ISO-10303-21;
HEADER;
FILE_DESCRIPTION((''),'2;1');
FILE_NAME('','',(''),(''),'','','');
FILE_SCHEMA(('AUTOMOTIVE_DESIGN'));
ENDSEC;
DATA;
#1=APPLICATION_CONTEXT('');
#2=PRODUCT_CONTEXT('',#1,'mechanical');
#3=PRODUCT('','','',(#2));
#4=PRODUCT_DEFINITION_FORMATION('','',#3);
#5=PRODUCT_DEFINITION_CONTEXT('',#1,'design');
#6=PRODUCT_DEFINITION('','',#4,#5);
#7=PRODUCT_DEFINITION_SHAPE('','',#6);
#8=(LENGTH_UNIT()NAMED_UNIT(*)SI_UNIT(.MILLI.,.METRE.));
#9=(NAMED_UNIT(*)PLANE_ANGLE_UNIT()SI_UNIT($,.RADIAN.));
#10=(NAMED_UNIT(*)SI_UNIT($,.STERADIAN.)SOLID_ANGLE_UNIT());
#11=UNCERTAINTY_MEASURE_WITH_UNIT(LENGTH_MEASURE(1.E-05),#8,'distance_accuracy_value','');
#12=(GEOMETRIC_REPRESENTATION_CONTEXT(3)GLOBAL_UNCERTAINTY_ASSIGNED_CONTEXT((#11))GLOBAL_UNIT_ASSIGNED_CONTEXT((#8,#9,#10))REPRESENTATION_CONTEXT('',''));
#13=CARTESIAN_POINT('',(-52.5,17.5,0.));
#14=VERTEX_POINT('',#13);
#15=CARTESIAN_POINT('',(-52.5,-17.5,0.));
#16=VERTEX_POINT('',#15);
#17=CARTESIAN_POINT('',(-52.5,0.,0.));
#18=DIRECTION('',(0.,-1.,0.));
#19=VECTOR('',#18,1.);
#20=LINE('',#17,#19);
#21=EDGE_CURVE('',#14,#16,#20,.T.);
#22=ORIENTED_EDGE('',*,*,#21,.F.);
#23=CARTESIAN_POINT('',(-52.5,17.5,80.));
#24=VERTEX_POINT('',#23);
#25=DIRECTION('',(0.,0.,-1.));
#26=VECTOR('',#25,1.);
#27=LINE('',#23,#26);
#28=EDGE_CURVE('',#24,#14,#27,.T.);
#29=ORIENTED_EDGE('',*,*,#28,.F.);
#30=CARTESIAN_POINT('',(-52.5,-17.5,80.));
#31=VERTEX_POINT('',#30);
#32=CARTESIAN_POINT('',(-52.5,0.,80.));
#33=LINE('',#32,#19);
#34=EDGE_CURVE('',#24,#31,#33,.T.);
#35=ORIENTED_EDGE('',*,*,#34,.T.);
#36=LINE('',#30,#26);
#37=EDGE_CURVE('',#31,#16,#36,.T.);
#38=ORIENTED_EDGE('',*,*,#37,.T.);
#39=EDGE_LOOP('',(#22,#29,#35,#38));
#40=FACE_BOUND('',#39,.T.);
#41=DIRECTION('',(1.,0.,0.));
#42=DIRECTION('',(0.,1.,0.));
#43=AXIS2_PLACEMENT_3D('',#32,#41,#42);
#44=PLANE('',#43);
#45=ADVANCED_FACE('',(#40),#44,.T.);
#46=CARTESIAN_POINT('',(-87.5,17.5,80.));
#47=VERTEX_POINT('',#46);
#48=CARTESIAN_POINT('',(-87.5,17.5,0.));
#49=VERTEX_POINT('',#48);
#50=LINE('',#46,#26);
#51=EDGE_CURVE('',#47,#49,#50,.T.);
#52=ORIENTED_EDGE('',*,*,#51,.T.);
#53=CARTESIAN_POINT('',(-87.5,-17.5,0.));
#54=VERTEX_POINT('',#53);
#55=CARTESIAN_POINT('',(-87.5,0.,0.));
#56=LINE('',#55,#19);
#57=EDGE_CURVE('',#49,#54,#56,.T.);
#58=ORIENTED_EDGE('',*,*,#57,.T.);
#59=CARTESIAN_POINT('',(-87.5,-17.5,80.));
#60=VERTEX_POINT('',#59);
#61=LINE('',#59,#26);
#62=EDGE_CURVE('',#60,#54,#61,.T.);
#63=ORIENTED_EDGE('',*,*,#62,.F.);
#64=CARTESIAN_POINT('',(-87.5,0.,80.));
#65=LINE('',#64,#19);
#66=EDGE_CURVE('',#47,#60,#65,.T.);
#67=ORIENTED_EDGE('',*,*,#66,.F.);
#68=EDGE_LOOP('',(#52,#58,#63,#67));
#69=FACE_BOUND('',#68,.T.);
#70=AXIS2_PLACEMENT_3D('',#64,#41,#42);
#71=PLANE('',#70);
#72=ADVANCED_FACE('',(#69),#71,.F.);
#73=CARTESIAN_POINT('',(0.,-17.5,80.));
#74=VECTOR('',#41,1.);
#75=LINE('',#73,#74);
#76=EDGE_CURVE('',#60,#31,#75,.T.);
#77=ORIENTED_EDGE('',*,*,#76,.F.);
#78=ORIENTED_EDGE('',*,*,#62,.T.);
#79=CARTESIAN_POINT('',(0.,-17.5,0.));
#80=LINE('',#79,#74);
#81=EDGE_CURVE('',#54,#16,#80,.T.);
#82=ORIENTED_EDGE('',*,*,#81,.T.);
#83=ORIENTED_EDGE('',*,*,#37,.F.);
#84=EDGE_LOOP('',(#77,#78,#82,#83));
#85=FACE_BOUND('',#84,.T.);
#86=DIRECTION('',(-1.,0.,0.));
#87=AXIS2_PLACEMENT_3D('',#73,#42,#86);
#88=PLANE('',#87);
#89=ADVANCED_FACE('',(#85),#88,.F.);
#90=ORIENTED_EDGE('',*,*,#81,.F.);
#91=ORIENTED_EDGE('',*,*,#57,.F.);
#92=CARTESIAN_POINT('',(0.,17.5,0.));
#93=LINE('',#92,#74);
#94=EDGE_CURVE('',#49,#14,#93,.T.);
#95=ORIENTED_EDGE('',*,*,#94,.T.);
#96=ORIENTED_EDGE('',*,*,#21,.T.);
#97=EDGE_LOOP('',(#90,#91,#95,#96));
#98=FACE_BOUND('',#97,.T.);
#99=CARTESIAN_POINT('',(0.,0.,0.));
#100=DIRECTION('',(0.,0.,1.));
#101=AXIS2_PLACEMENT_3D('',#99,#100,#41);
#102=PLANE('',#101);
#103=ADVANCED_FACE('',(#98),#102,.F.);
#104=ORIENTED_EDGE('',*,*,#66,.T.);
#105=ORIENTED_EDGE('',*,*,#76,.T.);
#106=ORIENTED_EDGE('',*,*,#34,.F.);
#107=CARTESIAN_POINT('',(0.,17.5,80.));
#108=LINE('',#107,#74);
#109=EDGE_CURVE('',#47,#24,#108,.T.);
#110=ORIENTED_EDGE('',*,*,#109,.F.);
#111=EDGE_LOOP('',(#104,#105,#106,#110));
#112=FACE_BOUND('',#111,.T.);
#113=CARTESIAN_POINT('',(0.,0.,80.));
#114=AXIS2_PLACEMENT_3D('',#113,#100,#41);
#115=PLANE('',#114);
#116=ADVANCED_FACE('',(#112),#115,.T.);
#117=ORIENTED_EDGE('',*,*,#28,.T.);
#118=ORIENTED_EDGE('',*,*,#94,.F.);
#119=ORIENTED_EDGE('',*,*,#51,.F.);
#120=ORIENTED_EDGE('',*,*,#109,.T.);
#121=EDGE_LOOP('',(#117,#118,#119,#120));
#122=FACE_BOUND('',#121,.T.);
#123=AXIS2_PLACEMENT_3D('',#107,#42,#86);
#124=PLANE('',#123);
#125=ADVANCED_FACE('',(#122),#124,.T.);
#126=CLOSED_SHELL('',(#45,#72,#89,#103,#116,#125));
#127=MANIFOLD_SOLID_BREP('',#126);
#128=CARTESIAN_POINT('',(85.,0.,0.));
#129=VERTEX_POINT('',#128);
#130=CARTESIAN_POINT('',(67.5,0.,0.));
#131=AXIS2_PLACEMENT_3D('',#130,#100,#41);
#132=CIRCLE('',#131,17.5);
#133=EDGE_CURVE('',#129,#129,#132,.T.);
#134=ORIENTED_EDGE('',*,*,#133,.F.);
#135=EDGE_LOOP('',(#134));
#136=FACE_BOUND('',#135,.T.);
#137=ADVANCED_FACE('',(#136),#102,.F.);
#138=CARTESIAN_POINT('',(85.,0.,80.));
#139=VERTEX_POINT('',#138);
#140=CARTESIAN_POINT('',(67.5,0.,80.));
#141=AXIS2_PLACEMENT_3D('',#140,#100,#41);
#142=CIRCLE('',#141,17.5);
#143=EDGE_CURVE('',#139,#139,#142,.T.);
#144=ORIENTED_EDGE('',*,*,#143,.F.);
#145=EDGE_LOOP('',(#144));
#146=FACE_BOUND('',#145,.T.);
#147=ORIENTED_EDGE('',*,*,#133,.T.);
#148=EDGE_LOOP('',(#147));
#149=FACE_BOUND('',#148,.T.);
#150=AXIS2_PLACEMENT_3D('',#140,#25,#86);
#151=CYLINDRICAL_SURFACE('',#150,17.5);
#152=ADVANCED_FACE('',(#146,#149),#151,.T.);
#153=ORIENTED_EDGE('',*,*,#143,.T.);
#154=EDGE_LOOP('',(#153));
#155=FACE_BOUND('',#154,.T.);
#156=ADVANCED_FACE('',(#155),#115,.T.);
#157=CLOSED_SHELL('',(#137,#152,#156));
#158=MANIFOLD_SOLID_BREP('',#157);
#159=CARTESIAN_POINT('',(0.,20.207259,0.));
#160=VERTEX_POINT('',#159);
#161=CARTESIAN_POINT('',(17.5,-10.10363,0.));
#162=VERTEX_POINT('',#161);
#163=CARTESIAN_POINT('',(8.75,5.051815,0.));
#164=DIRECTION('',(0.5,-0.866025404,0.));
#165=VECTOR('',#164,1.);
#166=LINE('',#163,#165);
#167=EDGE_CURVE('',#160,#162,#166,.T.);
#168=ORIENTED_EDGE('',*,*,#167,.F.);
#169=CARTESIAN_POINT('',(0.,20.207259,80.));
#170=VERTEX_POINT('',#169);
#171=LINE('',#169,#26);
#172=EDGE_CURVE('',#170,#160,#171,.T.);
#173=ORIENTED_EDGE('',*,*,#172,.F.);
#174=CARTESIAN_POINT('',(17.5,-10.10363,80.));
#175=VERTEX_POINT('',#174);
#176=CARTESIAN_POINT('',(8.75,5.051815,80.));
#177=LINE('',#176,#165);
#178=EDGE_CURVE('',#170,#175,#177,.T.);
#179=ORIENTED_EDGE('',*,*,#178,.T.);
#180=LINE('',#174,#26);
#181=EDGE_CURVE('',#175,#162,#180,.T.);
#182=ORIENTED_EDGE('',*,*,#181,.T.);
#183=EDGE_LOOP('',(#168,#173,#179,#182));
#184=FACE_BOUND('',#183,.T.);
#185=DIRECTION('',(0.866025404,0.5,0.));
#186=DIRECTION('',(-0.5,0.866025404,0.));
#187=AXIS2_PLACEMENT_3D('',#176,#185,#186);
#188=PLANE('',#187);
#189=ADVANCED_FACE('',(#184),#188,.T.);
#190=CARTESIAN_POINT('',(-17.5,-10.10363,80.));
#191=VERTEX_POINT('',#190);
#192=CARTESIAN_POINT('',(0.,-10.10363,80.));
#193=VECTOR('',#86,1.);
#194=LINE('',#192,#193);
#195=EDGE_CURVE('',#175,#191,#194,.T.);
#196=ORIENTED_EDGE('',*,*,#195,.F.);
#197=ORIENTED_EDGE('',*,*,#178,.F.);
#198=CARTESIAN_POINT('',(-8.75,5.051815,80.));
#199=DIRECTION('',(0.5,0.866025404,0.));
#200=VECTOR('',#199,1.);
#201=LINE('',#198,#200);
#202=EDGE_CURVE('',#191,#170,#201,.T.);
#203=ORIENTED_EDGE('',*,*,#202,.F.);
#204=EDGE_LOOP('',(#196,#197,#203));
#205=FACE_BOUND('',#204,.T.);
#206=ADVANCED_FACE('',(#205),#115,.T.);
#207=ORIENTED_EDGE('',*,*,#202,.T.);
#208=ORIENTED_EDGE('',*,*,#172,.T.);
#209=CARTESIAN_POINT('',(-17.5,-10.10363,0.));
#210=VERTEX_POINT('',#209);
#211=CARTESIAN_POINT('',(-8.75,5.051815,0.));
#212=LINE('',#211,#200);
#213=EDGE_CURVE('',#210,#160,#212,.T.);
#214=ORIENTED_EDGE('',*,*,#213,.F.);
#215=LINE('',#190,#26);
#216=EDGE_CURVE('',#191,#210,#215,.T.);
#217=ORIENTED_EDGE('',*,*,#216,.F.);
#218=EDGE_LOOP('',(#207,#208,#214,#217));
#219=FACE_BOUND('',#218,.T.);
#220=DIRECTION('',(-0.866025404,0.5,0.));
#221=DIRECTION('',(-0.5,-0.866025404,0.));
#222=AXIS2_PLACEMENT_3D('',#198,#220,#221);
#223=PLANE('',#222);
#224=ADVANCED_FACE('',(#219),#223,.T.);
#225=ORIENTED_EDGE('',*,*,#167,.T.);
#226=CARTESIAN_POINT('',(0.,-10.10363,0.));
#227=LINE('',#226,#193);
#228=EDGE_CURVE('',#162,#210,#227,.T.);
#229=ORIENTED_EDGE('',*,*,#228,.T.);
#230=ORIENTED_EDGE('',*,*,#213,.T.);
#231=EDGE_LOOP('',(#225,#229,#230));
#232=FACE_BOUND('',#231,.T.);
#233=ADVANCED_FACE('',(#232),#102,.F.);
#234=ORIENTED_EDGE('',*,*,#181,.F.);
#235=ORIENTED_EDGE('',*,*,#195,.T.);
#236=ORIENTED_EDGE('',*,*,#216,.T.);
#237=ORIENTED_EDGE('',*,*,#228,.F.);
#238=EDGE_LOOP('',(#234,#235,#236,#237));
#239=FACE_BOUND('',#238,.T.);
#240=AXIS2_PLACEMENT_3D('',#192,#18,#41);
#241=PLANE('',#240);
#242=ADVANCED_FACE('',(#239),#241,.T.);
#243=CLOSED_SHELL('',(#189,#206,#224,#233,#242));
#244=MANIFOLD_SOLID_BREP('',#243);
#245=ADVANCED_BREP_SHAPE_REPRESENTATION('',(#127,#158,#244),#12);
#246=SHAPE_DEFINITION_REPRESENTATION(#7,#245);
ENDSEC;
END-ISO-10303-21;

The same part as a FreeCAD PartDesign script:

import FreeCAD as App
import Part
import Sketcher
Q = App.Units.Quantity


def add_polygon(sketch, points):
    """Adds a closed chain of lines whose ends are joined by coincident constraints."""
    first, n = sketch.GeometryCount, len(points)
    for a, b in zip(points, points[1:] + points[:1]):
        sketch.addGeometry(Part.LineSegment(App.Vector(*a, 0), App.Vector(*b, 0)), False)
    for i in range(n):
        sketch.addConstraint(Sketcher.Constraint("Coincident", first + i, 2, first + (i + 1) % n, 1))

doc = App.newDocument("Part")
body = doc.addObject("PartDesign::Body", "Body")

# Sketch on XY plane
sketch1 = body.newObject("Sketcher::SketchObject", "Sketch")
sketch1.AttachmentSupport = (doc.getObject("XY_Plane"), [""])
sketch1.MapMode = "FlatFace"
sketch1.addGeometry(Part.Circle(App.Vector(68, 0, 0), App.Vector(0, 0, 1), 18), False)
sketch1.addConstraint([
    Sketcher.Constraint("PointOnObject", 0, 3, -1),
    Sketcher.Constraint("Diameter", 0, Q("35 mm")),
    Sketcher.Constraint("DistanceX", -1, 1, 0, 3, Q("67.5 mm")),
])
pad1 = body.newObject("PartDesign::Pad", "Pad")
pad1.Profile = sketch1
pad1.Length = 80
body2 = doc.addObject("PartDesign::Body", "Body001")

# Sketch on XY plane
sketch2 = body2.newObject("Sketcher::SketchObject", "Sketch001")
sketch2.AttachmentSupport = (doc.getObject("XY_Plane001"), [""])
sketch2.MapMode = "FlatFace"
add_polygon(sketch2, [(0, 20), (-18, -10), (18, -10)])  # lines 0-2
sketch2.addConstraint([
    Sketcher.Constraint("Horizontal", 1),
    Sketcher.Constraint("PointOnObject", 2, 2, -2),
    Sketcher.Constraint("Equal", 0, 2),
    Sketcher.Constraint("DistanceX", 1, 1, 1, 2, Q("35 mm")),
    Sketcher.Constraint("Angle", 0, Q("-120 deg")),
    Sketcher.Constraint("DistanceY", 0, 2, -1, 1, Q("10.10363 mm")),
])
pad2 = body2.newObject("PartDesign::Pad", "Pad001")
pad2.Profile = sketch2
pad2.Length = 80
body3 = doc.addObject("PartDesign::Body", "Body002")

# Sketch on XY plane
sketch3 = body3.newObject("Sketcher::SketchObject", "Sketch002")
sketch3.AttachmentSupport = (doc.getObject("XY_Plane002"), [""])
sketch3.MapMode = "FlatFace"
add_polygon(sketch3, [(-88, 18), (-88, -18), (-52, -18), (-52, 18)])  # lines 0-3
sketch3.addConstraint([
    Sketcher.Constraint("Vertical", 0),
    Sketcher.Constraint("Horizontal", 1),
    Sketcher.Constraint("Vertical", 2),
    Sketcher.Constraint("Horizontal", 3),
    Sketcher.Constraint("Equal", 3, 0),
    Sketcher.Constraint("DistanceX", 1, 1, 1, 2, Q("35 mm")),
    Sketcher.Constraint("DistanceX", 0, 2, -1, 1, Q("87.5 mm")),
    Sketcher.Constraint("DistanceY", 0, 2, -1, 1, Q("17.5 mm")),
])
pad3 = body3.newObject("PartDesign::Pad", "Pad002")
pad3.Profile = sketch3
pad3.Length = 80

doc.recompute()
